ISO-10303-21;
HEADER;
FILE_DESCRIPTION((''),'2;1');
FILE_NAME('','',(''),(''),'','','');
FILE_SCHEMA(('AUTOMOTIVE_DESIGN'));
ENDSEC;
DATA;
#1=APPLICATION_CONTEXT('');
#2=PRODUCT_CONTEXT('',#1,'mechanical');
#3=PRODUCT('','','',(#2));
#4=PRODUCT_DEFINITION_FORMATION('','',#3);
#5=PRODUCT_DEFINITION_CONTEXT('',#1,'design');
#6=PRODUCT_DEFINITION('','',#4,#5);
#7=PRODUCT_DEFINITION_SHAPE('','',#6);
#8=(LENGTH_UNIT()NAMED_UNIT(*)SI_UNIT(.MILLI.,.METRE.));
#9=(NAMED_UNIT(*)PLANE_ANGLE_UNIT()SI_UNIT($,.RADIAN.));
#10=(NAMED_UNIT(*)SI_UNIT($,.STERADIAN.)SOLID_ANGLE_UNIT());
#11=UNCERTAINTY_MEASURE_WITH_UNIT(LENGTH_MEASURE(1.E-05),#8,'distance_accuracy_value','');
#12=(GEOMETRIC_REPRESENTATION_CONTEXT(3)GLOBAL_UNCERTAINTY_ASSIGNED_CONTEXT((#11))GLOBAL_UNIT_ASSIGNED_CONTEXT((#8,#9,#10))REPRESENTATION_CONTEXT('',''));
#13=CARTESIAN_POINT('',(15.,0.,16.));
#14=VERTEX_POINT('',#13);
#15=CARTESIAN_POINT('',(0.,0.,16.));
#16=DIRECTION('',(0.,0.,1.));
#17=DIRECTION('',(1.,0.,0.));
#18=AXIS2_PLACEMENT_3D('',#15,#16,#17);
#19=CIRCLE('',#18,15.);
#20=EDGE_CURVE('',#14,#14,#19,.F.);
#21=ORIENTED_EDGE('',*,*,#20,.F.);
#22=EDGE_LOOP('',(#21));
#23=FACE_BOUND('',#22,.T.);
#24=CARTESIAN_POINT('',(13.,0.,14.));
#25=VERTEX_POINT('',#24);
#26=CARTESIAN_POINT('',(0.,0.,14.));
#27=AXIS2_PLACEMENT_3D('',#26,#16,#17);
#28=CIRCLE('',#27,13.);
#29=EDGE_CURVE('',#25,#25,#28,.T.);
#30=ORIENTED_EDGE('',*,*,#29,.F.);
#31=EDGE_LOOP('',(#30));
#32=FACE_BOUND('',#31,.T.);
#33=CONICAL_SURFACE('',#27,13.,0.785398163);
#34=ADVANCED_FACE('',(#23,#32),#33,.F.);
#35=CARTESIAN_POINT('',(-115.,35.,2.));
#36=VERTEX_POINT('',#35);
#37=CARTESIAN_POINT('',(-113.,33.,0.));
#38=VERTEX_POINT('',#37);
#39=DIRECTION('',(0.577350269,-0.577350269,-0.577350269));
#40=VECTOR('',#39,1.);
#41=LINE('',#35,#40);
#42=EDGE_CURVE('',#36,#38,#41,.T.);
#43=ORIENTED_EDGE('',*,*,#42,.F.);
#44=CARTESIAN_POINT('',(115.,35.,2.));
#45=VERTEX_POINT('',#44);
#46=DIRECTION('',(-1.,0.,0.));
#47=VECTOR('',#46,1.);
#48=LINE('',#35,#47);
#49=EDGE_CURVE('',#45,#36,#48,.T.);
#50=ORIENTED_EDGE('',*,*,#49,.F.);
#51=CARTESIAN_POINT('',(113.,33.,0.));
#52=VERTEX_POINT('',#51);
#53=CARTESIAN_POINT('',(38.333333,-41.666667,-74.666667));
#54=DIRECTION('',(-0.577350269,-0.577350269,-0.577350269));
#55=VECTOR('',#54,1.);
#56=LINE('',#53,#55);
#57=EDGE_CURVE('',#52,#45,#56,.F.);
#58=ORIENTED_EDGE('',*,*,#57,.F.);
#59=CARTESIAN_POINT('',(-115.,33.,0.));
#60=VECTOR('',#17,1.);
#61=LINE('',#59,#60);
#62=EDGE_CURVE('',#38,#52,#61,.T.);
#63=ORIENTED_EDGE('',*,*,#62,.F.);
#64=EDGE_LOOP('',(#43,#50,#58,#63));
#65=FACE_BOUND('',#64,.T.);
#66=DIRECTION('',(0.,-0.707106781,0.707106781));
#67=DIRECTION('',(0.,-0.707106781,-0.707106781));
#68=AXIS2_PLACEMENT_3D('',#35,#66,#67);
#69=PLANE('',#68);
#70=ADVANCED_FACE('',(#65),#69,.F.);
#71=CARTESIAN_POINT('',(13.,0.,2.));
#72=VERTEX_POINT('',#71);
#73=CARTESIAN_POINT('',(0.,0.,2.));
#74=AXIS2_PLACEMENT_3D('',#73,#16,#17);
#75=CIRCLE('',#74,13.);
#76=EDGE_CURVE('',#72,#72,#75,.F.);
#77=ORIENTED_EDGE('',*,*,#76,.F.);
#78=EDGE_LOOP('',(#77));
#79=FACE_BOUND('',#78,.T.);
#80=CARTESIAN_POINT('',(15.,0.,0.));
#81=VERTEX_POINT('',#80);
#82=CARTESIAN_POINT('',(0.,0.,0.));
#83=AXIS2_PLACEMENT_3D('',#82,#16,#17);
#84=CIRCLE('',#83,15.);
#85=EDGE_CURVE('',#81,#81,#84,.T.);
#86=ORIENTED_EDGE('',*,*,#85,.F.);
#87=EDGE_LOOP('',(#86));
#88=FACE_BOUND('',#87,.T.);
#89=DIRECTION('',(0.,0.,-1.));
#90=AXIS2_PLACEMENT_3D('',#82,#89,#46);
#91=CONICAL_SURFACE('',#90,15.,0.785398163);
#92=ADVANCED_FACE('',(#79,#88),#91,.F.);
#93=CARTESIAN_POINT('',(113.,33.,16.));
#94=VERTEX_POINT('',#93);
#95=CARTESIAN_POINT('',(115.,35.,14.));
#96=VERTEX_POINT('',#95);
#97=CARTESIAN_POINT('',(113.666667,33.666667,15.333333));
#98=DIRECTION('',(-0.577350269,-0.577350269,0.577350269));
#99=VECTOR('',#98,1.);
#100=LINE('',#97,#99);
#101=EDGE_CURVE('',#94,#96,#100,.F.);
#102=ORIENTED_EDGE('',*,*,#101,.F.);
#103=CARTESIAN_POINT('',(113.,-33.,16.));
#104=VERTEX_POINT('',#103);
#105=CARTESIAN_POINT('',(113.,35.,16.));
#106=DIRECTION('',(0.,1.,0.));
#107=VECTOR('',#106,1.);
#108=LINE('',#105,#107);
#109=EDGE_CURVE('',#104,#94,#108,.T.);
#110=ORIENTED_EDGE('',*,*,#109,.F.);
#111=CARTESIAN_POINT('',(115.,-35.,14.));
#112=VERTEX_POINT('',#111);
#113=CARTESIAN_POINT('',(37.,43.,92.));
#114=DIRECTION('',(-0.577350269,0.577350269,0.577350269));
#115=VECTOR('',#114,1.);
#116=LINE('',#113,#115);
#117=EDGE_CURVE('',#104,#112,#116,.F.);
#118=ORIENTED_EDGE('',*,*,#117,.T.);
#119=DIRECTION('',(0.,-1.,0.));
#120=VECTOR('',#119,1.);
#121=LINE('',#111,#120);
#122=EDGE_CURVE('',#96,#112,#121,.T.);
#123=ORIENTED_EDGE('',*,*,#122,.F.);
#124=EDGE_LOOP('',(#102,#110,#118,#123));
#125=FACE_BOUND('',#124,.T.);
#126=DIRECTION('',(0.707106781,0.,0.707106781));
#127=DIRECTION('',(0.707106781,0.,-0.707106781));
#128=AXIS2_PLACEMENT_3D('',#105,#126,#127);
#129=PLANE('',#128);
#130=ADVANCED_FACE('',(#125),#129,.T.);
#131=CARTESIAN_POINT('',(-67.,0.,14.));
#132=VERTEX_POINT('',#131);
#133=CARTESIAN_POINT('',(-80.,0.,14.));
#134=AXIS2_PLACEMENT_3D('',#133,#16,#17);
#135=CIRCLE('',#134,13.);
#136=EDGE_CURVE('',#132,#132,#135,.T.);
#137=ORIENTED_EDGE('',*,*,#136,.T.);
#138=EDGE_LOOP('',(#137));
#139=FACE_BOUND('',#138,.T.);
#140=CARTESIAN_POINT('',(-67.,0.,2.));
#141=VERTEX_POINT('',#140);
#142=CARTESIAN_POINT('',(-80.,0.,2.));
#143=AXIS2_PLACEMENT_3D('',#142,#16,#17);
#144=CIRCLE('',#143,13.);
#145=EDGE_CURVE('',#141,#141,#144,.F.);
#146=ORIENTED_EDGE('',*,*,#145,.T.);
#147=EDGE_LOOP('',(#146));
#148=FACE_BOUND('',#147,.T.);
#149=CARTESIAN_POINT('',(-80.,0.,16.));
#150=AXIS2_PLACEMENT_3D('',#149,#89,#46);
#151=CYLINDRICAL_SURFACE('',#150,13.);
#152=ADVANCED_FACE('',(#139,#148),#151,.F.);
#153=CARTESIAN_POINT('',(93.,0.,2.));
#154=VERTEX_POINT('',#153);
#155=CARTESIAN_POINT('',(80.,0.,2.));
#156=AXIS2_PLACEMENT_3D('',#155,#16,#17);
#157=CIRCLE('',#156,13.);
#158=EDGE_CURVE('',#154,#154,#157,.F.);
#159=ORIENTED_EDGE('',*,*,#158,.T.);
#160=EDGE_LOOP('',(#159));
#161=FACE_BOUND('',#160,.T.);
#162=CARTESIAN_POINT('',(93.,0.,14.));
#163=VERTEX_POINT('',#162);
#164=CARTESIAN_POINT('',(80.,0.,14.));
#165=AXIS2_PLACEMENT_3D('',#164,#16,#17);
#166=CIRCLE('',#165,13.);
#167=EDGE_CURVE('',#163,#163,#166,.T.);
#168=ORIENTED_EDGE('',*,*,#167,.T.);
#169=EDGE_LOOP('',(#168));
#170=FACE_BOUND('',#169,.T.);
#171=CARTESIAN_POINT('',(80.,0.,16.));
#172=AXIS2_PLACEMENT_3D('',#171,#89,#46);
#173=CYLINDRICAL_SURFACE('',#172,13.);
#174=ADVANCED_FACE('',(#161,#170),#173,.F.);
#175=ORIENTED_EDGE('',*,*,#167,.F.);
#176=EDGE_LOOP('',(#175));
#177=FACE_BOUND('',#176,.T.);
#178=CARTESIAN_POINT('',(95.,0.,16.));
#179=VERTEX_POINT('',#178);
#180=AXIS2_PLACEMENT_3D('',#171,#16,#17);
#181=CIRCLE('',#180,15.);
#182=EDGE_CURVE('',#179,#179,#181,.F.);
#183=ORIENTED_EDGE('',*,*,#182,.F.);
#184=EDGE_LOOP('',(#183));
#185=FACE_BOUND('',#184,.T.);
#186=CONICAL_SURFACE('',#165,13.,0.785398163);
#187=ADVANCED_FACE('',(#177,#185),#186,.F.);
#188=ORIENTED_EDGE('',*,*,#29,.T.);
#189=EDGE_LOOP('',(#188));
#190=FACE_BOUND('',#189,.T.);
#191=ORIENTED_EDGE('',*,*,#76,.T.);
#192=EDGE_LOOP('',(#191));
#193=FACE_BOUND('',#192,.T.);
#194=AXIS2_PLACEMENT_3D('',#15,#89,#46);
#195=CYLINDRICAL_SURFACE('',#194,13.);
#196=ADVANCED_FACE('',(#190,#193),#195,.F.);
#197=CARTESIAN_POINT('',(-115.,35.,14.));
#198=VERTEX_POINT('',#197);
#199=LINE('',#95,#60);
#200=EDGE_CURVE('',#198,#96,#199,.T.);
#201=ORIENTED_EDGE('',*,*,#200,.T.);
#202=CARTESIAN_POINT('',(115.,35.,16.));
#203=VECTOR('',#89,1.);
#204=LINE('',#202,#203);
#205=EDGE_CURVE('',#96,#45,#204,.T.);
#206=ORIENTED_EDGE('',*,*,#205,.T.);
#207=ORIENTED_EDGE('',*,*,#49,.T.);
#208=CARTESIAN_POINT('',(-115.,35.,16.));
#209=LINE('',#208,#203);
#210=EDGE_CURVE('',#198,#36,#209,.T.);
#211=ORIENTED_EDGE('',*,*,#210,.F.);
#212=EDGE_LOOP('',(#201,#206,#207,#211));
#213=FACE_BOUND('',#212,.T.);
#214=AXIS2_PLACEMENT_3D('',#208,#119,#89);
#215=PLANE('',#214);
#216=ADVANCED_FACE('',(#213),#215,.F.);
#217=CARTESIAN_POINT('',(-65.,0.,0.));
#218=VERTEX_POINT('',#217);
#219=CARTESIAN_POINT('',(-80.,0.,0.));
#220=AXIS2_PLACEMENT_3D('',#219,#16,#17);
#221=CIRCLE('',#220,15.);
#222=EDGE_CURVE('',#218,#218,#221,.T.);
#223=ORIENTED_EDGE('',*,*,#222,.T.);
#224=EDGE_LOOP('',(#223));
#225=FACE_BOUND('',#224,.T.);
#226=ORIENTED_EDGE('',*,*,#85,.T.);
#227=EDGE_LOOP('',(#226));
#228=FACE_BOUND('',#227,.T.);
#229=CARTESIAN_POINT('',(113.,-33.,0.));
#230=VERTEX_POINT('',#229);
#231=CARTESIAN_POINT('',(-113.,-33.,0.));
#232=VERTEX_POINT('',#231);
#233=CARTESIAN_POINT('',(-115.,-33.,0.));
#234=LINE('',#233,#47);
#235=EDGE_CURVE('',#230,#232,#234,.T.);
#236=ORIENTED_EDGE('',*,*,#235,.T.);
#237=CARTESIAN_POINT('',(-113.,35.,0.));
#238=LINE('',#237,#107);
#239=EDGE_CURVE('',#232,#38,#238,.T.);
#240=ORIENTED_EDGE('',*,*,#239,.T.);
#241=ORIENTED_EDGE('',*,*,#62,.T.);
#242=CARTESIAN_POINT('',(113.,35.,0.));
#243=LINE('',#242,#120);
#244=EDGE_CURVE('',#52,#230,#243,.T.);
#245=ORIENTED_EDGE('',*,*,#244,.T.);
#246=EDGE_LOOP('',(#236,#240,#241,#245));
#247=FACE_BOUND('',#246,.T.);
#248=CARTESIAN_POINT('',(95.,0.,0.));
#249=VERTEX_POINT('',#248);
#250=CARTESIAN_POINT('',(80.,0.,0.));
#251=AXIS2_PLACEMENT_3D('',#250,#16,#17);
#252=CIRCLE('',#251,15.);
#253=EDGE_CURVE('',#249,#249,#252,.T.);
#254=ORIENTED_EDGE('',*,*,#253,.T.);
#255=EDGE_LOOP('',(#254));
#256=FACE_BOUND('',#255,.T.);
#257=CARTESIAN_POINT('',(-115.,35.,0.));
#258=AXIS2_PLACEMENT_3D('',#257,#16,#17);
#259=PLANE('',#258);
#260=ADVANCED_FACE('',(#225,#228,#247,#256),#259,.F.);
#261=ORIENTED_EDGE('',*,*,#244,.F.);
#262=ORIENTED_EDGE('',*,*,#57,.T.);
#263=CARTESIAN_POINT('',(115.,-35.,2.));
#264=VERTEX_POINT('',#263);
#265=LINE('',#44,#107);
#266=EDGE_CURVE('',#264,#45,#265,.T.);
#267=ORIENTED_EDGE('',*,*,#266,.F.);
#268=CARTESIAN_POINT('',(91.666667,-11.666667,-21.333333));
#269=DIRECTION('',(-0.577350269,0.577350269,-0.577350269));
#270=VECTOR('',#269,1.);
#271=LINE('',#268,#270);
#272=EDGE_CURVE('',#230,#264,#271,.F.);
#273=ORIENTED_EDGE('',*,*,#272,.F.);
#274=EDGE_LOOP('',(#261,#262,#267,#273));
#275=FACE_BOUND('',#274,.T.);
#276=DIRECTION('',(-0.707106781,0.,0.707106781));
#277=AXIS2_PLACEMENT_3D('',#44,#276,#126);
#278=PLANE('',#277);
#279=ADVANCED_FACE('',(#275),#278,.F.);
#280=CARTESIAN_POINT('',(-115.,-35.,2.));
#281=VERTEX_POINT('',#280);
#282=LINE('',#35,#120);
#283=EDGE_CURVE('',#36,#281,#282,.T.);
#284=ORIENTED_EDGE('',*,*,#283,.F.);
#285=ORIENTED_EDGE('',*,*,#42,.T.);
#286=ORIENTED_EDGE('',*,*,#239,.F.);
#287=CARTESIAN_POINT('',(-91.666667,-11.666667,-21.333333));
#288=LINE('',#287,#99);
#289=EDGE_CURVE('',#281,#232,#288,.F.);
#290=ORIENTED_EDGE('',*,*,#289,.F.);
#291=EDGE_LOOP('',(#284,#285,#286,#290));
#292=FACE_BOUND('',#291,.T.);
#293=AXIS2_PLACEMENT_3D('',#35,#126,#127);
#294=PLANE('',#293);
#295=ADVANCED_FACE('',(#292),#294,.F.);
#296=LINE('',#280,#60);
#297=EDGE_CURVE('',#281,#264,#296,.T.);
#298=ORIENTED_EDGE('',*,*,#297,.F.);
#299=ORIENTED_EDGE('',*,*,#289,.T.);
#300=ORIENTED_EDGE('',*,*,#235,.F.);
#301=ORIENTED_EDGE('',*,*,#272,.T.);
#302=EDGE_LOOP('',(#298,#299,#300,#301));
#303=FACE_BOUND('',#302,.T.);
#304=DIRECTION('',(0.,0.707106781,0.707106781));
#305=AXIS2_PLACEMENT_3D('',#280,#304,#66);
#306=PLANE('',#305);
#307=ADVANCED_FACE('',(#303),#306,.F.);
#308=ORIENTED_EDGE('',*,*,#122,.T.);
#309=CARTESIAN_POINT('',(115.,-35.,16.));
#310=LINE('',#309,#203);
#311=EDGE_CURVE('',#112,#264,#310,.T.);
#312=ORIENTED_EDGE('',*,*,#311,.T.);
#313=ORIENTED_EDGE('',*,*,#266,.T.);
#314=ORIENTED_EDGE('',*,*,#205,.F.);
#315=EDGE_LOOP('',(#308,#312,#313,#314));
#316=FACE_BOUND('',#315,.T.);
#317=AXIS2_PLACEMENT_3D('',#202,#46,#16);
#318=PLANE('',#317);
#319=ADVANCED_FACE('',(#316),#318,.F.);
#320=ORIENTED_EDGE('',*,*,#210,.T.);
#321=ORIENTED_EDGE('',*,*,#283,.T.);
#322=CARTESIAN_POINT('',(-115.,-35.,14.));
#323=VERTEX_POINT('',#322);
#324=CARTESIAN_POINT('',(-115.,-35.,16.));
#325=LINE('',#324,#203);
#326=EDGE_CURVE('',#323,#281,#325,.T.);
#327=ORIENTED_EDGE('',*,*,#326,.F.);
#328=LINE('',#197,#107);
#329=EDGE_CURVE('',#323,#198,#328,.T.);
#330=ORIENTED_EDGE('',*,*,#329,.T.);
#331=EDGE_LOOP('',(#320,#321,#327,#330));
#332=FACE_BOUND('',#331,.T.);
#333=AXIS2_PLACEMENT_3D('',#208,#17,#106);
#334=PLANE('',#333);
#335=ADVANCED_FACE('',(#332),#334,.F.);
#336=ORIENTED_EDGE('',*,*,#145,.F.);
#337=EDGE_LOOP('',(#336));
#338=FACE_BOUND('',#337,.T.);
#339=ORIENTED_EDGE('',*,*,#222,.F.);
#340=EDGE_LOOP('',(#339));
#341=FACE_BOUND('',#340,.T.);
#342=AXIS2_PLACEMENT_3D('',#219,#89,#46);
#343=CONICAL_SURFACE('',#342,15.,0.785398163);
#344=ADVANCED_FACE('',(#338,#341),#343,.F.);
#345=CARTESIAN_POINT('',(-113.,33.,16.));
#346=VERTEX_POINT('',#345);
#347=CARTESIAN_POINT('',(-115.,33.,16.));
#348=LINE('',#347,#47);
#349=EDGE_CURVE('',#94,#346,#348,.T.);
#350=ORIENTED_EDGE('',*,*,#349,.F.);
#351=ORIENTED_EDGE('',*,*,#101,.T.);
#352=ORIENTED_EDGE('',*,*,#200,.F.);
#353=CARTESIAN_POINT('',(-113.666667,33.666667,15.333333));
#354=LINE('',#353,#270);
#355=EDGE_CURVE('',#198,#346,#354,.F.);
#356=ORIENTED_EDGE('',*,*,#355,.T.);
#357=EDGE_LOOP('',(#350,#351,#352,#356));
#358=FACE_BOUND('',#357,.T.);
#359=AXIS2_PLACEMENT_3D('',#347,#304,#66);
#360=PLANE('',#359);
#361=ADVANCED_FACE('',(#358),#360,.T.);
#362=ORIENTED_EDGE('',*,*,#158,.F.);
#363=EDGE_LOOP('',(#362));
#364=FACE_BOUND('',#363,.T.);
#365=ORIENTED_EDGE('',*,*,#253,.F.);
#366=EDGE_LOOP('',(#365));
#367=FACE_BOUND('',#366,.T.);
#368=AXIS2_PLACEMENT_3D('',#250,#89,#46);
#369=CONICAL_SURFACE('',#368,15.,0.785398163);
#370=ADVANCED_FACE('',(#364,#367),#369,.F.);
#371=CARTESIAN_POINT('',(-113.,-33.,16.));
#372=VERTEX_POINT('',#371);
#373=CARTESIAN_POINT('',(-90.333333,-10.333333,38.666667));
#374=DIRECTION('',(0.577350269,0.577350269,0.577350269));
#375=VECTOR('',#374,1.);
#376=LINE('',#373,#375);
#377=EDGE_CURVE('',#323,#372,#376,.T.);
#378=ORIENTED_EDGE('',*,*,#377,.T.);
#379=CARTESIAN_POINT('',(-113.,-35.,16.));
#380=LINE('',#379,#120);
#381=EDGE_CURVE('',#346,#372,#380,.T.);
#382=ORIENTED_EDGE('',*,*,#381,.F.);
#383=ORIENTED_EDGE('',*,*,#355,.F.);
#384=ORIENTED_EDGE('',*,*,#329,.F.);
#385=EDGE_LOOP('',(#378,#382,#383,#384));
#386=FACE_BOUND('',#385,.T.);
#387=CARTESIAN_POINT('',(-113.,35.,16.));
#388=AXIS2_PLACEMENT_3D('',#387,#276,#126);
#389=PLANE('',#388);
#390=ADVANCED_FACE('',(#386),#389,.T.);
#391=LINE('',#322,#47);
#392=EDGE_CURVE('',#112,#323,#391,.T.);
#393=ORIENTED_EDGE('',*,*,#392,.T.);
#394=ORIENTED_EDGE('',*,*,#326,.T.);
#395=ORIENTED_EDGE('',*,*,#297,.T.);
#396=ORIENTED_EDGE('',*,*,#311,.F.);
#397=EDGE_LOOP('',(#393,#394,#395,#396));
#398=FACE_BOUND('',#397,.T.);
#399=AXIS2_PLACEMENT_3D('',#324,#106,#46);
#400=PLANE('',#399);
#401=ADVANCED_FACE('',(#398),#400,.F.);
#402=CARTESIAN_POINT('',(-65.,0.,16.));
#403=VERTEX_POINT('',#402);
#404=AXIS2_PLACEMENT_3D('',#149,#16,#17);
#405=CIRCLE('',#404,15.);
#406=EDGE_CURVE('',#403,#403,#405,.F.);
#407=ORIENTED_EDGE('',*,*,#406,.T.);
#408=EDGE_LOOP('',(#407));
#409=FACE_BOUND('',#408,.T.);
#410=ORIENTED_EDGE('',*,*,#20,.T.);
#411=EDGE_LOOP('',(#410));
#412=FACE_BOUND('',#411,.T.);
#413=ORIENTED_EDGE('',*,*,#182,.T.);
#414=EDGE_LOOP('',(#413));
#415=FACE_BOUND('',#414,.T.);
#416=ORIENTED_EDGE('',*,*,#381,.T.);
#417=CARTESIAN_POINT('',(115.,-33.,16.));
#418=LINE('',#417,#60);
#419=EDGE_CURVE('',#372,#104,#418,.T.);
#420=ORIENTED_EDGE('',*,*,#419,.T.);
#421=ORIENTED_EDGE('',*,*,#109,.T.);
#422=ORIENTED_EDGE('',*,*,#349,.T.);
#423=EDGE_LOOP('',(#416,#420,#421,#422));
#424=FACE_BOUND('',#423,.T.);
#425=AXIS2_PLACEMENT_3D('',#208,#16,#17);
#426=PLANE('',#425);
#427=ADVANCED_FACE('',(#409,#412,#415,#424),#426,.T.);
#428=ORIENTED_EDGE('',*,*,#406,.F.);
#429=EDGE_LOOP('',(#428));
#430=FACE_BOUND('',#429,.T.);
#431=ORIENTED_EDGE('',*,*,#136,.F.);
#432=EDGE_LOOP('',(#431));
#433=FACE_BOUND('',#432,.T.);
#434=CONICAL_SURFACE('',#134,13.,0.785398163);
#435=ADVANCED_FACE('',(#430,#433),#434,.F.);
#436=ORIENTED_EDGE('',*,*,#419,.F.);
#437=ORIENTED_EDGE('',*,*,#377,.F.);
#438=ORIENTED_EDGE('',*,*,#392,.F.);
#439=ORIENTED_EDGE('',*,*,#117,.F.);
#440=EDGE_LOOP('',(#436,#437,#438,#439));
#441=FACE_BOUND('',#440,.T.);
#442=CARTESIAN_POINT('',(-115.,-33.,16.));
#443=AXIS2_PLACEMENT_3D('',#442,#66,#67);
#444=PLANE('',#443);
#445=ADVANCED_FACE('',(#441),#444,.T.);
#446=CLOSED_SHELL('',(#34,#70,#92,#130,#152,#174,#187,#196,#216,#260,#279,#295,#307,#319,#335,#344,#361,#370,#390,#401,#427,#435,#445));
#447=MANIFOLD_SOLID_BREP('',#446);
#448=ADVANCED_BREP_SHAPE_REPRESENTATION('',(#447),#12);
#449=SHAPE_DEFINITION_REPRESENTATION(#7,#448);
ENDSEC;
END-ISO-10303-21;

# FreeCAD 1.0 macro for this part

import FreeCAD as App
import Part
import Sketcher
from FreeCAD import Vector
Q = App.Units.Quantity


def edges_at(feature, points):
    """Names of the edges that pass closest to the given points."""
    edges = feature.Shape.Edges
    near = lambda p: min(range(len(edges)), key=lambda i: edges[i].distToShape(Part.Vertex(*p))[0])
    return sorted({f"Edge{near(p) + 1}" for p in points})

doc = App.newDocument("Part")
body = doc.addObject("PartDesign::Body", "Body")

# Sketch on XY plane
sketch1 = doc.addObject("Sketcher::SketchObject", "Sketch")
body.addObject(sketch1)
sketch1.AttachmentSupport = (doc.XY_Plane, [""])
sketch1.MapMode = "FlatFace"
sketch1.addGeometry([
    Part.LineSegment(Vector(-115, 35, 0), Vector(-115, -35, 0)),  # 0
    Part.LineSegment(Vector(-115, -35, 0), Vector(115, -35, 0)),  # 1
    Part.LineSegment(Vector(115, -35, 0), Vector(115, 35, 0)),  # 2
    Part.LineSegment(Vector(115, 35, 0), Vector(-115, 35, 0)),  # 3
    Part.Circle(Vector(-80, 0, 0), Vector(0, 0, 1), 13),  # 4
    Part.Circle(Vector(0, 0, 0), Vector(0, 0, 1), 13),  # 5
    Part.Circle(Vector(80, 0, 0), Vector(0, 0, 1), 13),  # 6
], False)
sketch1.addConstraint([
    Sketcher.Constraint("Coincident", 0, 2, 1, 1),
    Sketcher.Constraint("Coincident", 1, 2, 2, 1),
    Sketcher.Constraint("Coincident", 2, 2, 3, 1),
    Sketcher.Constraint("Coincident", 3, 2, 0, 1),
    Sketcher.Constraint("Vertical", 0),
    Sketcher.Constraint("Horizontal", 1),
    Sketcher.Constraint("Vertical", 2),
    Sketcher.Constraint("Horizontal", 3),
    Sketcher.Constraint("Coincident", 5, 3, -1, 1),
    Sketcher.Constraint("Equal", 4, 5),
    Sketcher.Constraint("Equal", 5, 6),
    Sketcher.Constraint("Symmetric", 4, 3, 6, 3, -1, 1),
    Sketcher.Constraint("Symmetric", 0, 2, 2, 2, -1, 1),
    Sketcher.Constraint("PointOnObject", 4, 3, -1),
    Sketcher.Constraint("Diameter", 4, Q("26 mm")),
    Sketcher.Constraint("DistanceX", 1, 1, 1, 2, Q("230 mm")),
    Sketcher.Constraint("DistanceY", 0, 2, 0, 1, Q("70 mm")),
    Sketcher.Constraint("DistanceX", 4, 3, -1, 1, Q("80 mm")),
])
pad1 = doc.addObject("PartDesign::Pad", "Pad")
body.addObject(pad1)
pad1.Profile = sketch1
pad1.Length = 16
doc.recompute()

chamfer = doc.addObject("PartDesign::Chamfer", "Chamfer")
body.addObject(chamfer)
chamfer.Base = (pad1, edges_at(pad1, [
    (115, 0, 16),
    (-13, 0, 0),
    (-13, 0, 16),
    (0, 35, 16),
    (67, 0, 0),
    (67, 0, 16),
    (-93, 0, 0),
    (-93, 0, 16),
    (-115, 0, 16),
    (0, 35, 0),
    (115, 0, 0),
    (0, -35, 0),
    (-115, 0, 0),
    (0, -35, 16),
]))
chamfer.Size = 2

doc.recompute()
